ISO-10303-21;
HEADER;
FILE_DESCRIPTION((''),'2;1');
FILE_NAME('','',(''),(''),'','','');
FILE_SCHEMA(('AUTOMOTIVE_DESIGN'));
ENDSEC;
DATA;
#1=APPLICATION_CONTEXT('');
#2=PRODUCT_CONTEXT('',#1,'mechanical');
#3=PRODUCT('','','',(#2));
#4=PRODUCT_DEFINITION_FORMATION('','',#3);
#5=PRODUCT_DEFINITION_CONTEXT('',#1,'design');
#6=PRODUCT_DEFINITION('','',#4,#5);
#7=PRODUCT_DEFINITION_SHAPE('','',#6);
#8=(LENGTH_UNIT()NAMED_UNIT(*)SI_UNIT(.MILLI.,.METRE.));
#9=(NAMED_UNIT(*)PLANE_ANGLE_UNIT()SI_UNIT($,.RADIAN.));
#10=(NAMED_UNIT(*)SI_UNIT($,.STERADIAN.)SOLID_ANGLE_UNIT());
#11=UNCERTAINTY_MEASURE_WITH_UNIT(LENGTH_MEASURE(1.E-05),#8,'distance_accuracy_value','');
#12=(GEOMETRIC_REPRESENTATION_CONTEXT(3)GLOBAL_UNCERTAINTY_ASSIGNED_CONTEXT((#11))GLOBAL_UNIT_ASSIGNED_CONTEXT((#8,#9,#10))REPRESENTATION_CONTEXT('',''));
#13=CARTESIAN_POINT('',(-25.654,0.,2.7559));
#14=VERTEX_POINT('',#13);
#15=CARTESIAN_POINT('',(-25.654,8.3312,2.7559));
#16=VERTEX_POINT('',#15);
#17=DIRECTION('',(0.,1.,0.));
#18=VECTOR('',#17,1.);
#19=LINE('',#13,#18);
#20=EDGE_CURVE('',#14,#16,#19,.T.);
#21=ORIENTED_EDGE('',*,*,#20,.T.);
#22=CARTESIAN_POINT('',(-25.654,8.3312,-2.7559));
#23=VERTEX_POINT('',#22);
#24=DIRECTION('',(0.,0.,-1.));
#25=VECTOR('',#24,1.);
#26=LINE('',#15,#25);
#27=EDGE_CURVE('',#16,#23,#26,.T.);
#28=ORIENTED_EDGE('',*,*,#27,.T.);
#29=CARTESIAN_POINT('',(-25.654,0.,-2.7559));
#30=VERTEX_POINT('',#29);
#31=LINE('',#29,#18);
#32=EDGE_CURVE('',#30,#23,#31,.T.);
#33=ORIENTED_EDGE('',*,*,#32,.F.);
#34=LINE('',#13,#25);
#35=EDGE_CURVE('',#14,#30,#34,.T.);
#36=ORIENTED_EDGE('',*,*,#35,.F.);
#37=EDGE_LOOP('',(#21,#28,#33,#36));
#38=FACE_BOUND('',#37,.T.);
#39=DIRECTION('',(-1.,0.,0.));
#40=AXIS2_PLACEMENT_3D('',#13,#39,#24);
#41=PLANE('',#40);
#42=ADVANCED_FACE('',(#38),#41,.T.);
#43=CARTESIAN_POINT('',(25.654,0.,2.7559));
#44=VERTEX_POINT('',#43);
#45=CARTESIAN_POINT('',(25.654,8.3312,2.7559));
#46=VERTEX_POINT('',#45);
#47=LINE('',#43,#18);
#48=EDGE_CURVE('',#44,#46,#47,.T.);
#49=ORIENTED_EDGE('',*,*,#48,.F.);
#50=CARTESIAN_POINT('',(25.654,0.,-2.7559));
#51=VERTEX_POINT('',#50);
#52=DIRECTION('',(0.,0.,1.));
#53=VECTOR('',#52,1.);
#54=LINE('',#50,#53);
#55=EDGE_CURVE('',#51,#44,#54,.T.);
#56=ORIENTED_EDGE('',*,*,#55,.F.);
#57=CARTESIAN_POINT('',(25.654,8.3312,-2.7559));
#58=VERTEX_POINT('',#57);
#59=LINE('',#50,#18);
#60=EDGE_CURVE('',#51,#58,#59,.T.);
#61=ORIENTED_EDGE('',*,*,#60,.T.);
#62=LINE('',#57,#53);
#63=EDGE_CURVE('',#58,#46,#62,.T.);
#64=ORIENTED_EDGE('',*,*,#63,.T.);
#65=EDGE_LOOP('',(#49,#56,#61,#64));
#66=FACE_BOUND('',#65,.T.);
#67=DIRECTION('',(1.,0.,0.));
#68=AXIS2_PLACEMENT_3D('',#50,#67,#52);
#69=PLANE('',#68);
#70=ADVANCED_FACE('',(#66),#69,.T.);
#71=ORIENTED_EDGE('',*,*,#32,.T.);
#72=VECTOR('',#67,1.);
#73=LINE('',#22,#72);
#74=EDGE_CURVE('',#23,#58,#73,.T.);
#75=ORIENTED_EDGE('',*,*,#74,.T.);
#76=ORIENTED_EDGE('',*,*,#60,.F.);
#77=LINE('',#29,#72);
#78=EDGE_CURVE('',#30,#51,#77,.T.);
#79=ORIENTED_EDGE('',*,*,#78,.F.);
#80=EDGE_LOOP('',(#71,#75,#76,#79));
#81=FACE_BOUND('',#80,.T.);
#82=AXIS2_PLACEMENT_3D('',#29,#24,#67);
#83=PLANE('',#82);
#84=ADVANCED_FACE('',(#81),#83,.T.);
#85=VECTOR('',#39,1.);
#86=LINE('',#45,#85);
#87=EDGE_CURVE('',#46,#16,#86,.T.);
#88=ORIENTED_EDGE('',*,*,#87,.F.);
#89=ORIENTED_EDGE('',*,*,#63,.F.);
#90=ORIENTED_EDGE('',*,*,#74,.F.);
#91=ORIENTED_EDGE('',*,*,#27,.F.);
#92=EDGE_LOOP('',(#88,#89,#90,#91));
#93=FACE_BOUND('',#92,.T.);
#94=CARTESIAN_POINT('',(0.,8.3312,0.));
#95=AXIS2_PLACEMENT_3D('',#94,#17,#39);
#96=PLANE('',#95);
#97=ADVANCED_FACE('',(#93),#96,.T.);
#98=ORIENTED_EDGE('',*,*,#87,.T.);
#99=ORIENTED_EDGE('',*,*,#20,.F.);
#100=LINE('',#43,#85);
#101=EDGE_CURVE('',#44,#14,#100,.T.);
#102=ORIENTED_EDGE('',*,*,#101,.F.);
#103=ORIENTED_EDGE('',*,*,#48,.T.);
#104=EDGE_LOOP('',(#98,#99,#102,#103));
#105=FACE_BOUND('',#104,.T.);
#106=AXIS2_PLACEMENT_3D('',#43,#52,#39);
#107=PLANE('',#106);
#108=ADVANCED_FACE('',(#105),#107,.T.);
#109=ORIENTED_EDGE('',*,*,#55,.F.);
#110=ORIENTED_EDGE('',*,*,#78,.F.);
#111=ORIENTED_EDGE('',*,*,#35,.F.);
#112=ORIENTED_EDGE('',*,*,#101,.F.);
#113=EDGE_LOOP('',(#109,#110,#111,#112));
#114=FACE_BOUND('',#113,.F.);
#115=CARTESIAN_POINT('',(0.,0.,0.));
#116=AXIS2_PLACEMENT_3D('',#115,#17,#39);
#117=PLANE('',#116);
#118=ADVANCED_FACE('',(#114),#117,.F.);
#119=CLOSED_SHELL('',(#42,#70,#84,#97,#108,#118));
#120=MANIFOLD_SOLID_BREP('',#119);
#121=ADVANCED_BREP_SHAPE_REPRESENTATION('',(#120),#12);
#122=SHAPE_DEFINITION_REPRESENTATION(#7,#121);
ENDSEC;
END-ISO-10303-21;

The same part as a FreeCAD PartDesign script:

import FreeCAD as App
import Part
import Sketcher
Q = App.Units.Quantity

doc = App.newDocument("Part")
body = doc.addObject("PartDesign::Body", "Body")

# Sketch on XZ plane
sketch1 = body.newObject("Sketcher::SketchObject", "Sketch")
sketch1.AttachmentSupport = (doc.getObject("XZ_Plane"), [""])
sketch1.MapMode = "FlatFace"
sketch1.addGeometry(Part.LineSegment(App.Vector(-26, 3, 0), App.Vector(26, 3, 0)), False)
sketch1.addGeometry(Part.LineSegment(App.Vector(26, 3, 0), App.Vector(26, -3, 0)), False)
sketch1.addGeometry(Part.LineSegment(App.Vector(26, -3, 0), App.Vector(-26, -3, 0)), False)
sketch1.addGeometry(Part.LineSegment(App.Vector(-26, -3, 0), App.Vector(-26, 3, 0)), False)
sketch1.addConstraint(Sketcher.Constraint("Coincident", 0, 2, 1, 1))
sketch1.addConstraint(Sketcher.Constraint("Coincident", 1, 2, 2, 1))
sketch1.addConstraint(Sketcher.Constraint("Coincident", 2, 2, 3, 1))
sketch1.addConstraint(Sketcher.Constraint("Coincident", 3, 2, 0, 1))
sketch1.addConstraint(Sketcher.Constraint("Horizontal", 0))
sketch1.addConstraint(Sketcher.Constraint("Vertical", 1))
sketch1.addConstraint(Sketcher.Constraint("Horizontal", 2))
sketch1.addConstraint(Sketcher.Constraint("Vertical", 3))
sketch1.addConstraint(Sketcher.Constraint("Symmetric", 0, 2, 2, 2, -1, 1))
sketch1.addConstraint(Sketcher.Constraint("DistanceX", 0, 1, 0, 2, Q("2.02 in")))
sketch1.addConstraint(Sketcher.Constraint("DistanceY", 1, 2, 1, 1, Q("0.217 in")))
pad1 = body.newObject("PartDesign::Pad", "Pad")
pad1.Profile = sketch1
pad1.Length = Q("0.328 in")
pad1.Reversed = True

doc.recompute()
